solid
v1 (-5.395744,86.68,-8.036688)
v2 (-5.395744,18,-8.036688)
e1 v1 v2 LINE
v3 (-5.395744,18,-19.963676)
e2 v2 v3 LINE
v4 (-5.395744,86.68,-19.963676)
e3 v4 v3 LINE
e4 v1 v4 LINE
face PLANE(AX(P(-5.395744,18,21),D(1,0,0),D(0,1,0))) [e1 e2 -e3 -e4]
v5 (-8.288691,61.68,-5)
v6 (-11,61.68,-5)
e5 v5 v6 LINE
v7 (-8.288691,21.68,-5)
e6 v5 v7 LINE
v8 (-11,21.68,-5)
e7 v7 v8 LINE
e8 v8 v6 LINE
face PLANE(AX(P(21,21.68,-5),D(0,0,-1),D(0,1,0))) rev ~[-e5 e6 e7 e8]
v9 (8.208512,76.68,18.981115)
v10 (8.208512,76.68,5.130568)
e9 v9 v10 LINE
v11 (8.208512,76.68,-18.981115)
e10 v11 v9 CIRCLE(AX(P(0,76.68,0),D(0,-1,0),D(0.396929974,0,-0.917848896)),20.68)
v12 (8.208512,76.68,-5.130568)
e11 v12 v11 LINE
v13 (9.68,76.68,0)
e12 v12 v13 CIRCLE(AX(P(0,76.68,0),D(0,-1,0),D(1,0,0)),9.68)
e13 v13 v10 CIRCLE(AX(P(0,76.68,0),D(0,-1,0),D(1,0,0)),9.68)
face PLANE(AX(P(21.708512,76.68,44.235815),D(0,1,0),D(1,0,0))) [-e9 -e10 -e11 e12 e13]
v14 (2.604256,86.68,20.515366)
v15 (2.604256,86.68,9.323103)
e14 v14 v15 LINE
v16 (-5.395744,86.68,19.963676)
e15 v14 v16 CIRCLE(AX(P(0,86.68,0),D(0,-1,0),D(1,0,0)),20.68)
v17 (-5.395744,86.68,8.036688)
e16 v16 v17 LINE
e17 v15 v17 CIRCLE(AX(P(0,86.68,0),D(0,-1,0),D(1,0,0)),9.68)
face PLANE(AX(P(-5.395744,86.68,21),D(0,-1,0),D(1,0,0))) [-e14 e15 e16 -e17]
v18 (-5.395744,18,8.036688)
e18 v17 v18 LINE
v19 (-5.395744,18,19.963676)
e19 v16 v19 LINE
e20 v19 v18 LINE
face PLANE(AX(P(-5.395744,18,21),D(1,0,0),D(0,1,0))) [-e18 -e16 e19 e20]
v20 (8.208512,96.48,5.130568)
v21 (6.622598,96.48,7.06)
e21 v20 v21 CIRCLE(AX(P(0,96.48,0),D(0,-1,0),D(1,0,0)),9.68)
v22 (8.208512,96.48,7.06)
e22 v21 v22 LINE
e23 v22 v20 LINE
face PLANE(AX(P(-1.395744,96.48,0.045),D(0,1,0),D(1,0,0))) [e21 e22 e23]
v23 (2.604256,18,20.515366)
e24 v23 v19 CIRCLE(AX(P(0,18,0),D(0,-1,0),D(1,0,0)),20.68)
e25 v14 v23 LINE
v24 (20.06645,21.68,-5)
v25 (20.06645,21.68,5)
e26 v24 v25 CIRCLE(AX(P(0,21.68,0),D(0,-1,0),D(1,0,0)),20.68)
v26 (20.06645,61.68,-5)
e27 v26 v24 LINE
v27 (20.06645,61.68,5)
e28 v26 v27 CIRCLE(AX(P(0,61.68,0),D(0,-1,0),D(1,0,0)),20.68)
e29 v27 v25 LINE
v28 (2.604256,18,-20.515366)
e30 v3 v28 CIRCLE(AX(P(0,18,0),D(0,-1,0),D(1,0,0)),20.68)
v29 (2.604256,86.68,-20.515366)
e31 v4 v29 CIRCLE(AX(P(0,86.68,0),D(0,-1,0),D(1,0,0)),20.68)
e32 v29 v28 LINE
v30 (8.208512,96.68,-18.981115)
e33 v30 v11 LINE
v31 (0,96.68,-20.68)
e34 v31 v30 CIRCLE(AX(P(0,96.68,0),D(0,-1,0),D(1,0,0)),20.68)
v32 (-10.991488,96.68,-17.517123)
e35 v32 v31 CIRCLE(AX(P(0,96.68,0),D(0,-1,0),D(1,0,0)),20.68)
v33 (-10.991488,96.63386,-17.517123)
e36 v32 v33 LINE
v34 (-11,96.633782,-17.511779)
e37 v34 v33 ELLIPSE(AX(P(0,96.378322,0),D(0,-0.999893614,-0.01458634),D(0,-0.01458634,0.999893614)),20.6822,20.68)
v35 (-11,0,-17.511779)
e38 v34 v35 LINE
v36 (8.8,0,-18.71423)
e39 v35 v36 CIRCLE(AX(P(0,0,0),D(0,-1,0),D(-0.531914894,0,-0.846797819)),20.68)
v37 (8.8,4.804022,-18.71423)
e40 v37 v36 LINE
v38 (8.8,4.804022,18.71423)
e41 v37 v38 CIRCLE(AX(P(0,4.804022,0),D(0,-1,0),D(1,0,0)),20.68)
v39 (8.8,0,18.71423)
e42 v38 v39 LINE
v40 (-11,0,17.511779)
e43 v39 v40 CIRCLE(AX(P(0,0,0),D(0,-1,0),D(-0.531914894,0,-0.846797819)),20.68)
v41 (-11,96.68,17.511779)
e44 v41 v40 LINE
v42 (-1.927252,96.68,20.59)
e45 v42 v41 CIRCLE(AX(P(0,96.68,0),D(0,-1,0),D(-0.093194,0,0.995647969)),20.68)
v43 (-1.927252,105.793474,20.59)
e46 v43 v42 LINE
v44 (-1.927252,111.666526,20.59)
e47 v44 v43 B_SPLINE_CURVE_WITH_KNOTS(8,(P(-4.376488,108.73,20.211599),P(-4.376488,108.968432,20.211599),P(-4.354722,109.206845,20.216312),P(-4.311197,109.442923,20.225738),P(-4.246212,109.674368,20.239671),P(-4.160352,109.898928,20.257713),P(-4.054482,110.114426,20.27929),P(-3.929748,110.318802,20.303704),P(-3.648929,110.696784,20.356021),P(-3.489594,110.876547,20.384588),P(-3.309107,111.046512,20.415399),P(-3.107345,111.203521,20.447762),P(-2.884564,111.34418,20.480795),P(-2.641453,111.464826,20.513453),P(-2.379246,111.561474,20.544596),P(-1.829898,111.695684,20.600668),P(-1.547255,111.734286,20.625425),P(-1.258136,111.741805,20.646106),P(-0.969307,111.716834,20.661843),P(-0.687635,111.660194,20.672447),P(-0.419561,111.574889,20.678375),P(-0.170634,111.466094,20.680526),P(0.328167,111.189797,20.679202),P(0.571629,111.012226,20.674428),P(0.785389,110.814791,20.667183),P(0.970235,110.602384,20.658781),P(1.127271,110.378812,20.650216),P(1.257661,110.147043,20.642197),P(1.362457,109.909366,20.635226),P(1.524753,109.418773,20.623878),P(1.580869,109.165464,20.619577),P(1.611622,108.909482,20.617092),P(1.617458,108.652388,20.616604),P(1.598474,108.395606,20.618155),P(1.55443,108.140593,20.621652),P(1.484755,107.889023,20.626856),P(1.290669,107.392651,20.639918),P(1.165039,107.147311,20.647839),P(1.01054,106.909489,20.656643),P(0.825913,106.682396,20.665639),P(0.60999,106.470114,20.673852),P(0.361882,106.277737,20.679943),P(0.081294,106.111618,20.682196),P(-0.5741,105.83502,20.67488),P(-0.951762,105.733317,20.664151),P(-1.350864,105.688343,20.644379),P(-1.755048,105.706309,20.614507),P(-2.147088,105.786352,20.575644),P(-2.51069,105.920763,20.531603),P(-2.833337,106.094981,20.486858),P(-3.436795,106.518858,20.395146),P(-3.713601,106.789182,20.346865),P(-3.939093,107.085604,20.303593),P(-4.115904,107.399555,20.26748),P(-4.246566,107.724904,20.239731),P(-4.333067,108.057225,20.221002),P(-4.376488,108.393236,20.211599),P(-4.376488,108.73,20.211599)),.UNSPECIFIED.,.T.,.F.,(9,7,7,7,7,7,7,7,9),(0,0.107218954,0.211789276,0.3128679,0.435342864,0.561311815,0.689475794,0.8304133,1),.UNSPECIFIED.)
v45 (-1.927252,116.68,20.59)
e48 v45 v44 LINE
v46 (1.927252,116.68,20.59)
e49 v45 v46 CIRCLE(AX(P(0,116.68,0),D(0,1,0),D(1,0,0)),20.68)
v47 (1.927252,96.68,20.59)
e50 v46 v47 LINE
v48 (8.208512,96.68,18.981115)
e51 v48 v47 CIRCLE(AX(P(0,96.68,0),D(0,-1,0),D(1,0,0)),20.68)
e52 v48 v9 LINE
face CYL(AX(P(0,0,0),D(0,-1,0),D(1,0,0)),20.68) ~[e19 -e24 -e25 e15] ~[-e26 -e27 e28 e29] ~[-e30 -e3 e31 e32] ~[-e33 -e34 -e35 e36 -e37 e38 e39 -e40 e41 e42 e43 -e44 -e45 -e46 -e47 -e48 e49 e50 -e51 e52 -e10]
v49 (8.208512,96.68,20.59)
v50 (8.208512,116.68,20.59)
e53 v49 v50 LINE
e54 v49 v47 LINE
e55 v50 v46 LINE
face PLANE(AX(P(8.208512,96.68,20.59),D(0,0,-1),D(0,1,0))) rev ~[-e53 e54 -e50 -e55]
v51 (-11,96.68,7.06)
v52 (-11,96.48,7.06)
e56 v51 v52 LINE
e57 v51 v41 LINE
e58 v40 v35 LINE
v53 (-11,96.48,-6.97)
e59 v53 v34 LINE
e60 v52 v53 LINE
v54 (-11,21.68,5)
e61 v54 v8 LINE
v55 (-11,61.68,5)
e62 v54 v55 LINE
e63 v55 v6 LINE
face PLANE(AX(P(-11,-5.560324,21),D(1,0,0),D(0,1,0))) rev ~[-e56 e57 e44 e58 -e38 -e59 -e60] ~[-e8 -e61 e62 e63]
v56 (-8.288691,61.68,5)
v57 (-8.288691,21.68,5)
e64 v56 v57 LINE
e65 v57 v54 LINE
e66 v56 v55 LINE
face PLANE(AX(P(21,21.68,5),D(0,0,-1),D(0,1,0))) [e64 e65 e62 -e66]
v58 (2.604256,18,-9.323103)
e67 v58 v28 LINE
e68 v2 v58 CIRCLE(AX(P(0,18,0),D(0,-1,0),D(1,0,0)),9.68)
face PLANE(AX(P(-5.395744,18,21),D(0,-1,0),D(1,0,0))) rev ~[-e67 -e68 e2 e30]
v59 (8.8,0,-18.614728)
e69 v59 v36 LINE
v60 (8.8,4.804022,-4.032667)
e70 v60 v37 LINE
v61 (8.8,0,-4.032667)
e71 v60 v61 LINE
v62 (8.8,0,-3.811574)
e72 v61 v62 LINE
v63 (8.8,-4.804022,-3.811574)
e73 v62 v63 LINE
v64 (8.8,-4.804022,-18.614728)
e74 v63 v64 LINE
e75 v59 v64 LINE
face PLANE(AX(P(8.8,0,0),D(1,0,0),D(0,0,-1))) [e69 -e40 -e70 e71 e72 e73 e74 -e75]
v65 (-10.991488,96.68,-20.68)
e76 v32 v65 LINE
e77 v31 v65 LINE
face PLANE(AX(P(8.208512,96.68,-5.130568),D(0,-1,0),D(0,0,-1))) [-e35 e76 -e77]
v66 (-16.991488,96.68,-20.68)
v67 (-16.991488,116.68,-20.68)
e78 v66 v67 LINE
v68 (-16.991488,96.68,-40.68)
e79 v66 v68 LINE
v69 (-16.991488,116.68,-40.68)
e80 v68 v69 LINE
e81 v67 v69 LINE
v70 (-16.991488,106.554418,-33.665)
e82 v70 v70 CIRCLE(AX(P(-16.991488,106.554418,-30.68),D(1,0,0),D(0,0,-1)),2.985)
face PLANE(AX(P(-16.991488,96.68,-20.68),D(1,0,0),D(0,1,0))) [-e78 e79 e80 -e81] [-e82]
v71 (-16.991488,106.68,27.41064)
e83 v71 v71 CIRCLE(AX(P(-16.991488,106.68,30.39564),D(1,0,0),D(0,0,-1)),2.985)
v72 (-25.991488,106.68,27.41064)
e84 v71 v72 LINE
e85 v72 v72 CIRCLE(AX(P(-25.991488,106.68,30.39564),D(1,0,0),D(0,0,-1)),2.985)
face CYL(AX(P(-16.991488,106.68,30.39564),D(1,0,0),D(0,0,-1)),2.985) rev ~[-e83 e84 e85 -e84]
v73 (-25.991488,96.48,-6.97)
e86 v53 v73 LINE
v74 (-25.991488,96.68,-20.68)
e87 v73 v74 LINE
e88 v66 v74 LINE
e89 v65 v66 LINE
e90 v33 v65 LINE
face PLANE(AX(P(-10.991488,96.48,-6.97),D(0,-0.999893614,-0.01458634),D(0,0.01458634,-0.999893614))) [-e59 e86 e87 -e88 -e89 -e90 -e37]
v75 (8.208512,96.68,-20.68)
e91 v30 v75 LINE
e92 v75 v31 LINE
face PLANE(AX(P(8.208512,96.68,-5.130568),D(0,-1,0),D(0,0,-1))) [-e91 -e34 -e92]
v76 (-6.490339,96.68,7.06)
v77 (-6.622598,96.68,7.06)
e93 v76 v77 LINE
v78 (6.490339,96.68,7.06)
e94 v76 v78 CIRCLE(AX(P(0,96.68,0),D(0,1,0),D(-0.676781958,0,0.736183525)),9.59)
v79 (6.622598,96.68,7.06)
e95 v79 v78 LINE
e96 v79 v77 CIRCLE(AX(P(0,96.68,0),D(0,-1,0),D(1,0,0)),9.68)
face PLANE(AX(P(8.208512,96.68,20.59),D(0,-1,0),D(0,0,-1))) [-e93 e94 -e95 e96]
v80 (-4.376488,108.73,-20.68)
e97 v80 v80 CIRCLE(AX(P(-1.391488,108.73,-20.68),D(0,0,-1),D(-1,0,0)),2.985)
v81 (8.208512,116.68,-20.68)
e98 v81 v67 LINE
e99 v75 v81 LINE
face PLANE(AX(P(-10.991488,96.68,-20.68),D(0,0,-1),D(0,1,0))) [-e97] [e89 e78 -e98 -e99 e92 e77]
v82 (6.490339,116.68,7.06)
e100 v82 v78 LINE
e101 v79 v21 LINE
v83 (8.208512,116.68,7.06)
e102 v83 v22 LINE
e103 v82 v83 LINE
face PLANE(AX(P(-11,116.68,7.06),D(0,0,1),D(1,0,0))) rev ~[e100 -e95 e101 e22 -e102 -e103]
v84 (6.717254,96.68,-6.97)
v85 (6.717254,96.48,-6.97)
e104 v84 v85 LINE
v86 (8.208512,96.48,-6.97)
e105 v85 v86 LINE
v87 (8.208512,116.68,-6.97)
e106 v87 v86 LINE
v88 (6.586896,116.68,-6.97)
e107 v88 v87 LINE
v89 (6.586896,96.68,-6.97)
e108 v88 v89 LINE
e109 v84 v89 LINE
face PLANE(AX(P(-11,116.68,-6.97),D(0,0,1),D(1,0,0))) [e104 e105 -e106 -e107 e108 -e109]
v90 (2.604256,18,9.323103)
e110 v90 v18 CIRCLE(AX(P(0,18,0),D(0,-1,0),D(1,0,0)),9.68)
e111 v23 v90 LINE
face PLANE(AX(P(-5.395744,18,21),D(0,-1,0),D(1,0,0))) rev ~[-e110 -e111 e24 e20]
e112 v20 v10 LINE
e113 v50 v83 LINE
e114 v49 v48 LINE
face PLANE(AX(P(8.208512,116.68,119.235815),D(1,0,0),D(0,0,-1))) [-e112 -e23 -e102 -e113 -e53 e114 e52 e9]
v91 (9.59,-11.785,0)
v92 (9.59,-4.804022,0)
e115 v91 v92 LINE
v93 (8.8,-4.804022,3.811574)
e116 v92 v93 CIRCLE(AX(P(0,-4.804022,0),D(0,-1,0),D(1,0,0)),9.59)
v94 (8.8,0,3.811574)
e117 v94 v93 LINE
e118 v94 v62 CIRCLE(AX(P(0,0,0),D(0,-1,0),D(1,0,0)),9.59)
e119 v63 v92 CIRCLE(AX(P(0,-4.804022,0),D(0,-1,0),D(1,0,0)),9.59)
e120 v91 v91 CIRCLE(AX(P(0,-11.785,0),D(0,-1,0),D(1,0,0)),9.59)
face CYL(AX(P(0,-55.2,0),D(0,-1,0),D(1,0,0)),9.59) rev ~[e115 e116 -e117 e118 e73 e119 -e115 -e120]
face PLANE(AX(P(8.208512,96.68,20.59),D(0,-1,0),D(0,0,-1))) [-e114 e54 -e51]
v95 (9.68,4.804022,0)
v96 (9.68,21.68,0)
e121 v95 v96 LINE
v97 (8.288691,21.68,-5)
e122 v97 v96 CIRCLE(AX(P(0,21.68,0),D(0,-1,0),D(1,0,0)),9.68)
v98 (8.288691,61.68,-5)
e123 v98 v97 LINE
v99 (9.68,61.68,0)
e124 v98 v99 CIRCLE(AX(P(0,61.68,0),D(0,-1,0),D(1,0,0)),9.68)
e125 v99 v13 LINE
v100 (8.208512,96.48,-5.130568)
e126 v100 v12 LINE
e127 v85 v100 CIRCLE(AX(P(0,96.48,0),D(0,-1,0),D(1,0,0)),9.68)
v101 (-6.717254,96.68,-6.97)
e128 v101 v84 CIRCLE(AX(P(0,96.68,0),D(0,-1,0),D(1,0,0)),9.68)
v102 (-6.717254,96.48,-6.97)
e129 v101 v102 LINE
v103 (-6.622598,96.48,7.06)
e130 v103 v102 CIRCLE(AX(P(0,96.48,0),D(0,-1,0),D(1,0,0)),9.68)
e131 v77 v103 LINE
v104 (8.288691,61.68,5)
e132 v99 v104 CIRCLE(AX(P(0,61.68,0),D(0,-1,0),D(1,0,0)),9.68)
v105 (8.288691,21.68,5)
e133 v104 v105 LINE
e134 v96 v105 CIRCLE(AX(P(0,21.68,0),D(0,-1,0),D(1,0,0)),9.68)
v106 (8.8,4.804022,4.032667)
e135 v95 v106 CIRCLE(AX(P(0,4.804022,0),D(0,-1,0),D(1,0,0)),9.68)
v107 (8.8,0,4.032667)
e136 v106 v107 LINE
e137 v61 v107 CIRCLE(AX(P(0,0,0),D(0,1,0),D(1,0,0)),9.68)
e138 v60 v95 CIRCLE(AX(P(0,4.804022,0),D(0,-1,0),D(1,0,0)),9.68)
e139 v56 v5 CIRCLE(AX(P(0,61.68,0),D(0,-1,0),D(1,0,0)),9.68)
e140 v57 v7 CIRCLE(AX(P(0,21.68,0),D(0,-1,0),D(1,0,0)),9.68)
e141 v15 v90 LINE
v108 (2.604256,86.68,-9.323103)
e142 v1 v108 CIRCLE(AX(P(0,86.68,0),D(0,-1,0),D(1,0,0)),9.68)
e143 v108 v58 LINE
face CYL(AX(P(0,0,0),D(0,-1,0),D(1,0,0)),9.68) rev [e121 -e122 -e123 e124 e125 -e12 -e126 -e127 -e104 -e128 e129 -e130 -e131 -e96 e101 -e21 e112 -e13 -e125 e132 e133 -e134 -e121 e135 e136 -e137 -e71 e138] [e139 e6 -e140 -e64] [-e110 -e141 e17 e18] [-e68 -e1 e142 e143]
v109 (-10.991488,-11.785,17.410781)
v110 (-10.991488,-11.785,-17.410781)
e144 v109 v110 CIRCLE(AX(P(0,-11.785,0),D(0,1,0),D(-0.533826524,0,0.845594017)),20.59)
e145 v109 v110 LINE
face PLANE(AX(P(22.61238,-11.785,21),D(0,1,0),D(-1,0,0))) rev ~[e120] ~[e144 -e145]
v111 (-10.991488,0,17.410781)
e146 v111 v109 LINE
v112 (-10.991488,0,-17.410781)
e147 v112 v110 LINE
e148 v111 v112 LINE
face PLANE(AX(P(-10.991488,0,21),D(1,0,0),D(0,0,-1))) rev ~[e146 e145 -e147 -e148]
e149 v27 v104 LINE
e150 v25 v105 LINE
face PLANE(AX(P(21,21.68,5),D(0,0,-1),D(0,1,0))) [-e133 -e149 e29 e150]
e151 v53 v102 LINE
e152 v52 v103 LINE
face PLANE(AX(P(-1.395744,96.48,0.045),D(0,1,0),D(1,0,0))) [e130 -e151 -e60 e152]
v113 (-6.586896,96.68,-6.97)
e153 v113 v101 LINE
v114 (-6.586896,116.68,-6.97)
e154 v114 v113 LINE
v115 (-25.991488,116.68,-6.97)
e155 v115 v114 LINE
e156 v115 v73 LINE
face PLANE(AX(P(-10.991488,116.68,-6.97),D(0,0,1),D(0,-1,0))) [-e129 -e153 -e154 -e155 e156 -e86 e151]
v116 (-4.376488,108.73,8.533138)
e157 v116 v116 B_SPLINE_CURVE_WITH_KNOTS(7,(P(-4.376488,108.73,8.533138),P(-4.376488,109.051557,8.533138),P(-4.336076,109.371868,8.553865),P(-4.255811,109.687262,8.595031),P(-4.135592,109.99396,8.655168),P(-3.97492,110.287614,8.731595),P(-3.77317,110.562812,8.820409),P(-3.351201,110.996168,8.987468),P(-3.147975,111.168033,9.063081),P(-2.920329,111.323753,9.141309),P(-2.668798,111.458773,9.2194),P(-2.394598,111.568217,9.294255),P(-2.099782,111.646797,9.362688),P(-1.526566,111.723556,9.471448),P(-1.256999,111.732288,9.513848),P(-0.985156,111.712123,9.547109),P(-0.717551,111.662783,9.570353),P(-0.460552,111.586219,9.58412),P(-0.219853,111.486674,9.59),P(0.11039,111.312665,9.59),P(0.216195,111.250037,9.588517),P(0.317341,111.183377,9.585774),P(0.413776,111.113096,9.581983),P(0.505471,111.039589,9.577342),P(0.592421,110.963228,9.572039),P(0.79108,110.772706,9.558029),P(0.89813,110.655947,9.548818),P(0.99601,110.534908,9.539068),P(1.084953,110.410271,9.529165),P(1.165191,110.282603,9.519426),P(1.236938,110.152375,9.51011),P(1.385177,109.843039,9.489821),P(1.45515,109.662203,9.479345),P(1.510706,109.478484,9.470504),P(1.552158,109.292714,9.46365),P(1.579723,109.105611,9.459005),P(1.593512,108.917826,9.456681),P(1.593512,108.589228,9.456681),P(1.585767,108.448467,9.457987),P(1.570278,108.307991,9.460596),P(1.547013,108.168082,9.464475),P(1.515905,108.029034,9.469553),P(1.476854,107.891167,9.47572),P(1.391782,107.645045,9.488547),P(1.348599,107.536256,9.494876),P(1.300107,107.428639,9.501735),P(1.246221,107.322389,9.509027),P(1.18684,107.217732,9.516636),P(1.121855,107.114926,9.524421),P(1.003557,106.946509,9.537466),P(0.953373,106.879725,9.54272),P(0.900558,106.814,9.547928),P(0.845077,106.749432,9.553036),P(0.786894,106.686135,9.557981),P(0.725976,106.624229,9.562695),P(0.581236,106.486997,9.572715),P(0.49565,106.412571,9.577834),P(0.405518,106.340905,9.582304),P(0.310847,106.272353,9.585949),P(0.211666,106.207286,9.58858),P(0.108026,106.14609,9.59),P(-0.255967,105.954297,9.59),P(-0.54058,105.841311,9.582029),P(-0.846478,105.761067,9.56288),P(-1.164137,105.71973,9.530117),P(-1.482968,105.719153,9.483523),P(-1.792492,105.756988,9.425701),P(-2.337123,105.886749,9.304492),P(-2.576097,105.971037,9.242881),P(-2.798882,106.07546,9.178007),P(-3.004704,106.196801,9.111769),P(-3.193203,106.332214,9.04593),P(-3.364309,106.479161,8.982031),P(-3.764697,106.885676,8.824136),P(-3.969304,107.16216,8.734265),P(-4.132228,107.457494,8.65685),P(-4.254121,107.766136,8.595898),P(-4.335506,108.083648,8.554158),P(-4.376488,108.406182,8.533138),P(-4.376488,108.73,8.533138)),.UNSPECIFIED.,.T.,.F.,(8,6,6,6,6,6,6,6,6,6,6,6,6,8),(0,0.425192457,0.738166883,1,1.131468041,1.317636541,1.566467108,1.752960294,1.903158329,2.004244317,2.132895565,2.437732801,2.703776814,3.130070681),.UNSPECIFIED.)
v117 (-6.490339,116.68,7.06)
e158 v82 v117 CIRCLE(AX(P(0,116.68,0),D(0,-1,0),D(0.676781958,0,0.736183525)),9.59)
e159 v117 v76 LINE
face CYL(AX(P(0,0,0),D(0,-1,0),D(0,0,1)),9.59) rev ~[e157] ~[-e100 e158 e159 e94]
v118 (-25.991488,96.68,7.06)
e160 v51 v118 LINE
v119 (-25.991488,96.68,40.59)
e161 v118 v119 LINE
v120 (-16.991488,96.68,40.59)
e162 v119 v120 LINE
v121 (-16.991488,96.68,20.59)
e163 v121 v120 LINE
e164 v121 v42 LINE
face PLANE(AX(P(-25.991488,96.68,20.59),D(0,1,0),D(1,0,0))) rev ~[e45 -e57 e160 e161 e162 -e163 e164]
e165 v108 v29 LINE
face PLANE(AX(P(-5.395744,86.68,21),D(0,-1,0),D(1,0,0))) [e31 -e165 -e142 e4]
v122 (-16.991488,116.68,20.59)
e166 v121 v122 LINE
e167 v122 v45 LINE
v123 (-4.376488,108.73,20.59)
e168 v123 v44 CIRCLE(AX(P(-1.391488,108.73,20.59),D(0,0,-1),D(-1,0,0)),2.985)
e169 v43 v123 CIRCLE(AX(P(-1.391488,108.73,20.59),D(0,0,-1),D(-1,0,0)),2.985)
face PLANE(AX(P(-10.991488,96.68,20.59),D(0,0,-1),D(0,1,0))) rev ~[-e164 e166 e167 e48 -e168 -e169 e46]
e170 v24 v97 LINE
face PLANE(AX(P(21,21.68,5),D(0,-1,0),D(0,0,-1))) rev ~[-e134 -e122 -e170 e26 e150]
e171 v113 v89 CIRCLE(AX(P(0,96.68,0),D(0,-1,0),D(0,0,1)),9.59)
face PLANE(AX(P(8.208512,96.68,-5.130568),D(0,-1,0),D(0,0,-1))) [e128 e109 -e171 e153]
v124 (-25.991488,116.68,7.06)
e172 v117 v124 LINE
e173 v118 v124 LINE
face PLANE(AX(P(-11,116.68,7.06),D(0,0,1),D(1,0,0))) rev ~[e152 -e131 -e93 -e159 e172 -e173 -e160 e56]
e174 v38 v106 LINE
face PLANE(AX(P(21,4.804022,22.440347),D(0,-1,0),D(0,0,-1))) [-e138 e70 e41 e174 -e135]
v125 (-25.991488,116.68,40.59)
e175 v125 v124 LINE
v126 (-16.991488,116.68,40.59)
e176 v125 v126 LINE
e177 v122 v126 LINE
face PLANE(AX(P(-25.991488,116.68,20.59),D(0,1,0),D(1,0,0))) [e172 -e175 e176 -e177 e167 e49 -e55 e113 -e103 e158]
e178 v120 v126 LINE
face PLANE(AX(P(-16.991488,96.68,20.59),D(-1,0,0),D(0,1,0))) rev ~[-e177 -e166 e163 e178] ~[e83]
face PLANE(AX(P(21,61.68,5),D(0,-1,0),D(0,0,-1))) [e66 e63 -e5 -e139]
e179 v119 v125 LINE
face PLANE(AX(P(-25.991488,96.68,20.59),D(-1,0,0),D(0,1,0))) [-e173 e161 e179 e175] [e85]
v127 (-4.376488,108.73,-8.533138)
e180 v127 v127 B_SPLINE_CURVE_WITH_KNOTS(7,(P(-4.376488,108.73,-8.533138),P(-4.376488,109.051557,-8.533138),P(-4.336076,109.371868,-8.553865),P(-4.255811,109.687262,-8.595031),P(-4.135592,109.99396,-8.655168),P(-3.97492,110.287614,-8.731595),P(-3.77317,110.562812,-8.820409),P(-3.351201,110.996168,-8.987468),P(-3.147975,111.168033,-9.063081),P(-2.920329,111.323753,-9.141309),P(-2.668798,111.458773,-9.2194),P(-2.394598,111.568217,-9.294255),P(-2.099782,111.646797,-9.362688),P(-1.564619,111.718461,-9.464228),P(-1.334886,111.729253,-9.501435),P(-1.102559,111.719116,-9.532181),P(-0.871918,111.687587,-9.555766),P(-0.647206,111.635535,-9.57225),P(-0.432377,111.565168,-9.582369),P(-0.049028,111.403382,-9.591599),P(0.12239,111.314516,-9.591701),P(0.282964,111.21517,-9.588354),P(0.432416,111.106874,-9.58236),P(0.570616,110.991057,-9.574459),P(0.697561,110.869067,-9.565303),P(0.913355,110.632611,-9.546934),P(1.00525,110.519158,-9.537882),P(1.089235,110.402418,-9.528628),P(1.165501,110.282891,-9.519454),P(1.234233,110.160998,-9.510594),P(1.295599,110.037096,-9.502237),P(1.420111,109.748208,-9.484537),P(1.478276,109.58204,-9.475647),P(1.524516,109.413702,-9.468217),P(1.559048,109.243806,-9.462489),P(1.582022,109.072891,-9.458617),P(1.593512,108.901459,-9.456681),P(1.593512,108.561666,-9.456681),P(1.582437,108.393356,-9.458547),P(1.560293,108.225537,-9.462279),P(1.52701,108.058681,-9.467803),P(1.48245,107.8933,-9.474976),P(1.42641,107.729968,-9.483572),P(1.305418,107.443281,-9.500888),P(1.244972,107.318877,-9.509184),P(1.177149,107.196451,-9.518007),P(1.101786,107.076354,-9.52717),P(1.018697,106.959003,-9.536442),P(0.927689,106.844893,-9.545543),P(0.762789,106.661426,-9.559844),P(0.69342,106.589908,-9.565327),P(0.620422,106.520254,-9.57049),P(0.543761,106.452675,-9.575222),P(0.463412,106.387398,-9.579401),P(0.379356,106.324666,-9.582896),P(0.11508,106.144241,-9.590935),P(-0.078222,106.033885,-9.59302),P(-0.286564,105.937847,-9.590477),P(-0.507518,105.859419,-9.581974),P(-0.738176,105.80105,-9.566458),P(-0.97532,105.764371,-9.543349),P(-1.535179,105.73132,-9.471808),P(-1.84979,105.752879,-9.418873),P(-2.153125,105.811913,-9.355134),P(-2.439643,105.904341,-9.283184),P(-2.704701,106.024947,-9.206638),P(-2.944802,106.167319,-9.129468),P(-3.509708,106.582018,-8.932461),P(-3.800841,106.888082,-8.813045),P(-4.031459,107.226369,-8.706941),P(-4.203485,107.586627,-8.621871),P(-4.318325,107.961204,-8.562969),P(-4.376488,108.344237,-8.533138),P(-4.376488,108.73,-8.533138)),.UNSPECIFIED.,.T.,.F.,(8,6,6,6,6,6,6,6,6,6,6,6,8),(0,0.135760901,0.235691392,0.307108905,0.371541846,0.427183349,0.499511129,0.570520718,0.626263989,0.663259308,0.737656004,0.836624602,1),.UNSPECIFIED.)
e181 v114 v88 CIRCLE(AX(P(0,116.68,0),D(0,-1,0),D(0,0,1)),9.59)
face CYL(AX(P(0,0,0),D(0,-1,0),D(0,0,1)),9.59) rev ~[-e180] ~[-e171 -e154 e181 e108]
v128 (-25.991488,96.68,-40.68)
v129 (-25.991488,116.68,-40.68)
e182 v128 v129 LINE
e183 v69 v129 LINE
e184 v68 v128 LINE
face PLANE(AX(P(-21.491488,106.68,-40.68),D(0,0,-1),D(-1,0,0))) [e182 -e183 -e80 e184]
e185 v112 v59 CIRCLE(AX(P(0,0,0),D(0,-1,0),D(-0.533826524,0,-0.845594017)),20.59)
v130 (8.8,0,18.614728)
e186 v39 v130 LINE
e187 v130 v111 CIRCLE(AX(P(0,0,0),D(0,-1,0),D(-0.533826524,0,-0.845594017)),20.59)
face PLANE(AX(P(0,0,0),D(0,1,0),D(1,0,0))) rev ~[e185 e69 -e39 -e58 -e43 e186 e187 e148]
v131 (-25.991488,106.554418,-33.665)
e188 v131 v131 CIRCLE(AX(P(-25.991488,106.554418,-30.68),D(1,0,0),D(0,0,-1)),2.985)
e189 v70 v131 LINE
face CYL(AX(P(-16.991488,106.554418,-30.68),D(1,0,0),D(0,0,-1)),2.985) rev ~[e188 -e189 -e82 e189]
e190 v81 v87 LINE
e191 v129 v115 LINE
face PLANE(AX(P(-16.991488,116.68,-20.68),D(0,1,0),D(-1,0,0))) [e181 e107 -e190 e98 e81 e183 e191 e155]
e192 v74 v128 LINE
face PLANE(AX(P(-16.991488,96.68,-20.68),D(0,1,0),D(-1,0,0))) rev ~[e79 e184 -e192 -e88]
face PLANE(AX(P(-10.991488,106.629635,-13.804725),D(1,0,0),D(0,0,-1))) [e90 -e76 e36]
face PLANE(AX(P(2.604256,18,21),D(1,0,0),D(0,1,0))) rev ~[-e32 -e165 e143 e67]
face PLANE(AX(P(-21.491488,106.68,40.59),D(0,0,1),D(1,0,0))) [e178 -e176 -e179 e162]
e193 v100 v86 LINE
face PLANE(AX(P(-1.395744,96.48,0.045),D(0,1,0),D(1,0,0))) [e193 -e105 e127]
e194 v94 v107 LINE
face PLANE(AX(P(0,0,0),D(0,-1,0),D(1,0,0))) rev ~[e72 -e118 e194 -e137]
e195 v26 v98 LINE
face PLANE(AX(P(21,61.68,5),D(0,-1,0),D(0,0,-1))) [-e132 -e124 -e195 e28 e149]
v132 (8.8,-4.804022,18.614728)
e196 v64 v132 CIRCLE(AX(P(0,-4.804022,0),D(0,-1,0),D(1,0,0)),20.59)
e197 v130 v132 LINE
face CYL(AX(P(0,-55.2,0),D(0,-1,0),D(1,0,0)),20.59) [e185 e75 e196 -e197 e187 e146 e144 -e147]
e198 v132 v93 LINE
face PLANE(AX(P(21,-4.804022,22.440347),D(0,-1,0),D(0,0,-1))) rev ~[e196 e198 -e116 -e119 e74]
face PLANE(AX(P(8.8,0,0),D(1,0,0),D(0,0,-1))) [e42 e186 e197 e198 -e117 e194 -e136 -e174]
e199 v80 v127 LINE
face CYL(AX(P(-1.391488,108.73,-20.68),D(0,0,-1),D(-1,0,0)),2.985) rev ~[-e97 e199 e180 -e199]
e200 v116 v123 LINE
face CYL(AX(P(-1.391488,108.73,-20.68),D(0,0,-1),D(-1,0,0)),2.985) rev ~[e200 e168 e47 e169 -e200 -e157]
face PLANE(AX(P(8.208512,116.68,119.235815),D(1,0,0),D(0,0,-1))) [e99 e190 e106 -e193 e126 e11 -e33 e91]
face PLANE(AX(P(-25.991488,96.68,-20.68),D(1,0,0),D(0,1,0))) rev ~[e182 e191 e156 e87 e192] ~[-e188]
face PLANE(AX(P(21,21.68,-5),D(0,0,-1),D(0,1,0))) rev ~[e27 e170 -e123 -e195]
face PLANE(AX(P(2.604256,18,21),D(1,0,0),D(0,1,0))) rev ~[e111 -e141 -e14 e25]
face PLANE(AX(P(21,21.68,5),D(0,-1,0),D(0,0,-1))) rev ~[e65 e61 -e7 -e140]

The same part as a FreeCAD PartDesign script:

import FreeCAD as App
import Part
import Sketcher
from FreeCAD import Vector

doc = App.newDocument("Part")
body = doc.addObject("PartDesign::Body", "Body")

# Sketch on XZ plane
sketch1 = body.newObject("Sketcher::SketchObject", "Sketch")
sketch1.AttachmentSupport = (doc.getObject("XZ_Plane"), [""])
sketch1.MapMode = "FlatFace"
sketch1.addGeometry(Part.Circle(Vector(0, 0, 0), Vector(0, 0, 1), 21), False)
sketch1.addGeometry(Part.Circle(Vector(0, 0, 0), Vector(0, 0, 1), 10), False)
sketch1.addConstraint(Sketcher.Constraint("Coincident", 0, 3, -1, 1))
sketch1.addConstraint(Sketcher.Constraint("Coincident", 1, 3, -1, 1))
sketch1.addConstraint(Sketcher.Constraint("Diameter", 0, 41.36))
sketch1.addConstraint(Sketcher.Constraint("Diameter", 1, 19.36))
pad1 = body.newObject("PartDesign::Pad", "Pad")
pad1.Profile = sketch1
pad1.Length = 116.68
pad1.Reversed = True

# Sketch on XZ plane
sketch2 = body.newObject("Sketcher::SketchObject", "Sketch001")
sketch2.AttachmentSupport = (doc.getObject("XZ_Plane"), [""])
sketch2.MapMode = "FlatFace"
sketch2.AttachmentOffset = App.Placement(Vector(0, 0, -116.68), App.Rotation())
sketch2.addGeometry(Part.LineSegment(Vector(8, -31, 0), Vector(8, 119, 0)), False)
sketch2.addGeometry(Part.LineSegment(Vector(8, 119, 0), Vector(35, 119, 0)), False)
sketch2.addGeometry(Part.LineSegment(Vector(35, 119, 0), Vector(35, -31, 0)), False)
sketch2.addGeometry(Part.LineSegment(Vector(35, -31, 0), Vector(8, -31, 0)), False)
sketch2.addConstraint(Sketcher.Constraint("Coincident", 0, 2, 1, 1))
sketch2.addConstraint(Sketcher.Constraint("Coincident", 1, 2, 2, 1))
sketch2.addConstraint(Sketcher.Constraint("Coincident", 2, 2, 3, 1))
sketch2.addConstraint(Sketcher.Constraint("Coincident", 3, 2, 0, 1))
sketch2.addConstraint(Sketcher.Constraint("Vertical", 0))
sketch2.addConstraint(Sketcher.Constraint("Horizontal", 1))
sketch2.addConstraint(Sketcher.Constraint("Vertical", 2))
sketch2.addConstraint(Sketcher.Constraint("Horizontal", 3))
sketch2.addConstraint(Sketcher.Constraint("DistanceX", 1, 1, 1, 2, 27.0))
sketch2.addConstraint(Sketcher.Constraint("DistanceY", 0, 1, 0, 2, 150.0))
sketch2.addConstraint(Sketcher.Constraint("DistanceX", -1, 1, 0, 2, 8.208512))
sketch2.addConstraint(Sketcher.Constraint("DistanceY", -1, 1, 0, 2, 119.235815))
pocket1 = body.newObject("PartDesign::Pocket", "Pocket")
pocket1.Profile = sketch2
pocket1.Length = 40
pocket1.Reversed = True

# Sketch on XY plane
sketch3 = body.newObject("Sketcher::SketchObject", "Sketch002")
sketch3.AttachmentSupport = (doc.getObject("XY_Plane"), [""])
sketch3.MapMode = "FlatFace"
sketch3.AttachmentOffset = App.Placement(Vector(0, 0, 21), App.Rotation())
sketch3.addGeometry(Part.LineSegment(Vector(-21, 123, 0), Vector(-21, -6, 0)), False)
sketch3.addGeometry(Part.LineSegment(Vector(-21, -6, 0), Vector(-11, -6, 0)), False)
sketch3.addGeometry(Part.LineSegment(Vector(-11, -6, 0), Vector(-11, 123, 0)), False)
sketch3.addGeometry(Part.LineSegment(Vector(-11, 123, 0), Vector(-21, 123, 0)), False)
sketch3.addConstraint(Sketcher.Constraint("Coincident", 0, 2, 1, 1))
sketch3.addConstraint(Sketcher.Constraint("Coincident", 1, 2, 2, 1))
sketch3.addConstraint(Sketcher.Constraint("Coincident", 2, 2, 3, 1))
sketch3.addConstraint(Sketcher.Constraint("Coincident", 3, 2, 0, 1))
sketch3.addConstraint(Sketcher.Constraint("Vertical", 0))
sketch3.addConstraint(Sketcher.Constraint("Horizontal", 1))
sketch3.addConstraint(Sketcher.Constraint("Vertical", 2))
sketch3.addConstraint(Sketcher.Constraint("Horizontal", 3))
sketch3.addConstraint(Sketcher.Constraint("DistanceX", 1, 1, 1, 2, 10.0))
sketch3.addConstraint(Sketcher.Constraint("DistanceX", 0, 2, -1, 1, 21.0))
sketch3.addConstraint(Sketcher.Constraint("DistanceY", 0, 2, 0, 1, 128.345013))
sketch3.addConstraint(Sketcher.Constraint("DistanceY", -1, 1, 2, 2, 122.784689))
pocket2 = body.newObject("PartDesign::Pocket", "Pocket001")
pocket2.Profile = sketch3
pocket2.Type = "ThroughAll"

# Sketch on XY plane
sketch4 = body.newObject("Sketcher::SketchObject", "Sketch003")
sketch4.AttachmentSupport = (doc.getObject("XY_Plane"), [""])
sketch4.MapMode = "FlatFace"
sketch4.AttachmentOffset = App.Placement(Vector(0, 0, 21), App.Rotation())
sketch4.addGeometry(Part.LineSegment(Vector(-5, 87, 0), Vector(-5, 18, 0)), False)
sketch4.addGeometry(Part.LineSegment(Vector(-5, 18, 0), Vector(3, 18, 0)), False)
sketch4.addGeometry(Part.LineSegment(Vector(3, 18, 0), Vector(3, 87, 0)), False)
sketch4.addGeometry(Part.LineSegment(Vector(3, 87, 0), Vector(-5, 87, 0)), False)
sketch4.addConstraint(Sketcher.Constraint("Coincident", 0, 2, 1, 1))
sketch4.addConstraint(Sketcher.Constraint("Coincident", 1, 2, 2, 1))
sketch4.addConstraint(Sketcher.Constraint("Coincident", 2, 2, 3, 1))
sketch4.addConstraint(Sketcher.Constraint("Coincident", 3, 2, 0, 1))
sketch4.addConstraint(Sketcher.Constraint("Vertical", 0))
sketch4.addConstraint(Sketcher.Constraint("Horizontal", 1))
sketch4.addConstraint(Sketcher.Constraint("Vertical", 2))
sketch4.addConstraint(Sketcher.Constraint("Horizontal", 3))
sketch4.addConstraint(Sketcher.Constraint("DistanceX", 1, 1, 1, 2, 8.0))
sketch4.addConstraint(Sketcher.Constraint("DistanceY", -1, 1, 0, 2, 18.0))
sketch4.addConstraint(Sketcher.Constraint("DistanceY", 0, 2, 0, 1, 68.68))
sketch4.addConstraint(Sketcher.Constraint("DistanceX", 0, 2, -1, 1, 5.395744))
pocket3 = body.newObject("PartDesign::Pocket", "Pocket002")
pocket3.Profile = sketch4
pocket3.Length = 48

# Sketch on YZ plane
sketch5 = body.newObject("Sketcher::SketchObject", "Sketch004")
sketch5.AttachmentSupport = (doc.getObject("YZ_Plane"), [""])
sketch5.MapMode = "FlatFace"
sketch5.AttachmentOffset = App.Placement(Vector(0, 0, 8.208512), App.Rotation())
sketch5.addGeometry(Part.LineSegment(Vector(117, -5, 0), Vector(97, -5, 0)), False)
sketch5.addGeometry(Part.LineSegment(Vector(97, -5, 0), Vector(97, -21, 0)), False)
sketch5.addGeometry(Part.LineSegment(Vector(97, -21, 0), Vector(117, -21, 0)), False)
sketch5.addGeometry(Part.LineSegment(Vector(117, -21, 0), Vector(117, -5, 0)), False)
sketch5.addGeometry(Part.LineSegment(Vector(117, 21, 0), Vector(97, 21, 0)), False)
sketch5.addGeometry(Part.LineSegment(Vector(97, 21, 0), Vector(97, 5, 0)), False)
sketch5.addGeometry(Part.LineSegment(Vector(97, 5, 0), Vector(117, 5, 0)), False)
sketch5.addGeometry(Part.LineSegment(Vector(117, 5, 0), Vector(117, 21, 0)), False)
sketch5.addConstraint(Sketcher.Constraint("Coincident", 0, 2, 1, 1))
sketch5.addConstraint(Sketcher.Constraint("Coincident", 1, 2, 2, 1))
sketch5.addConstraint(Sketcher.Constraint("Coincident", 2, 2, 3, 1))
sketch5.addConstraint(Sketcher.Constraint("Coincident", 3, 2, 0, 1))
sketch5.addConstraint(Sketcher.Constraint("Coincident", 4, 2, 5, 1))
sketch5.addConstraint(Sketcher.Constraint("Coincident", 5, 2, 6, 1))
sketch5.addConstraint(Sketcher.Constraint("Coincident", 6, 2, 7, 1))
sketch5.addConstraint(Sketcher.Constraint("Coincident", 7, 2, 4, 1))
sketch5.addConstraint(Sketcher.Constraint("Horizontal", 0))
sketch5.addConstraint(Sketcher.Constraint("Vertical", 1))
sketch5.addConstraint(Sketcher.Constraint("Horizontal", 2))
sketch5.addConstraint(Sketcher.Constraint("Vertical", 3))
sketch5.addConstraint(Sketcher.Constraint("Horizontal", 4))
sketch5.addConstraint(Sketcher.Constraint("Vertical", 5))
sketch5.addConstraint(Sketcher.Constraint("Horizontal", 6))
sketch5.addConstraint(Sketcher.Constraint("Vertical", 7))
sketch5.addConstraint(Sketcher.Constraint("Symmetric", 0, 2, 5, 2, -1))
sketch5.addConstraint(Sketcher.Constraint("Vertical", 3, 2, 6, 2))
sketch5.addConstraint(Sketcher.Constraint("DistanceX", 0, 2, 0, 1, 20.0))
sketch5.addConstraint(Sketcher.Constraint("DistanceX", -1, 1, 0, 2, 96.68))
sketch5.addConstraint(Sketcher.Constraint("DistanceY", 1, 2, -1, 1, 20.68))
sketch5.addConstraint(Sketcher.Constraint("DistanceY", -1, 1, 4, 2, 20.59))
sketch5.addConstraint(Sketcher.Constraint("DistanceY", 1, 2, 1, 1, 15.549432))
pad2 = body.newObject("PartDesign::Pad", "Pad001")
pad2.Profile = sketch5
pad2.Length = 19.2
pad2.Reversed = True

# Sketch on XZ plane
sketch6 = body.newObject("Sketcher::SketchObject", "Sketch005")
sketch6.AttachmentSupport = (doc.getObject("XZ_Plane"), [""])
sketch6.MapMode = "FlatFace"
sketch6.AttachmentOffset = App.Placement(Vector(0, 0, -116.68), App.Rotation())
sketch6.addGeometry(Part.LineSegment(Vector(-11, -7, 0), Vector(-11, 7, 0)), False)
sketch6.addGeometry(Part.LineSegment(Vector(-11, 7, 0), Vector(8, 7, 0)), False)
sketch6.addGeometry(Part.LineSegment(Vector(8, 7, 0), Vector(8, -7, 0)), False)
sketch6.addGeometry(Part.LineSegment(Vector(8, -7, 0), Vector(-11, -7, 0)), False)
sketch6.addConstraint(Sketcher.Constraint("Coincident", 0, 2, 1, 1))
sketch6.addConstraint(Sketcher.Constraint("Coincident", 1, 2, 2, 1))
sketch6.addConstraint(Sketcher.Constraint("Coincident", 2, 2, 3, 1))
sketch6.addConstraint(Sketcher.Constraint("Coincident", 3, 2, 0, 1))
sketch6.addConstraint(Sketcher.Constraint("Vertical", 0))
sketch6.addConstraint(Sketcher.Constraint("Horizontal", 1))
sketch6.addConstraint(Sketcher.Constraint("Vertical", 2))
sketch6.addConstraint(Sketcher.Constraint("Horizontal", 3))
sketch6.addConstraint(Sketcher.Constraint("DistanceX", 0, 2, -1, 1, 11.0))
sketch6.addConstraint(Sketcher.Constraint("DistanceY", 0, 1, 0, 2, 14.03))
sketch6.addConstraint(Sketcher.Constraint("DistanceY", -1, 1, 0, 2, 7.06))
sketch6.addConstraint(Sketcher.Constraint("DistanceX", 1, 1, 1, 2, 19.208512))
pocket4 = body.newObject("PartDesign::Pocket", "Pocket003")
pocket4.Profile = sketch6
pocket4.Length = 20.2
pocket4.Reversed = True

# Sketch on XZ plane
sketch7 = body.newObject("Sketcher::SketchObject", "Sketch006")
sketch7.AttachmentSupport = (doc.getObject("XZ_Plane"), [""])
sketch7.MapMode = "FlatFace"
sketch7.addGeometry(Part.Circle(Vector(0, 0, 0), Vector(0, 0, 1), 10), False)
sketch7.addConstraint(Sketcher.Constraint("Coincident", 0, 3, -1, 1))
sketch7.addConstraint(Sketcher.Constraint("Diameter", 0, 19.18))
pocket5 = body.newObject("PartDesign::Pocket", "Pocket004")
pocket5.Profile = sketch7
pocket5.Type = "ThroughAll"

# Sketch on XY plane
sketch8 = body.newObject("Sketcher::SketchObject", "Sketch007")
sketch8.AttachmentSupport = (doc.getObject("XY_Plane"), [""])
sketch8.MapMode = "FlatFace"
sketch8.AttachmentOffset = App.Placement(Vector(0, 0, -20.68), App.Rotation())
sketch8.addGeometry(Part.Circle(Vector(-1.4, 108.7, 0), Vector(0, 0, 1), 3), False)
sketch8.addConstraint(Sketcher.Constraint("Diameter", 0, 5.97))
sketch8.addConstraint(Sketcher.Constraint("DistanceY", -1, 1, 0, 3, 108.73))
sketch8.addConstraint(Sketcher.Constraint("DistanceX", 0, 3, -1, 1, 1.391488))
pocket6 = body.newObject("PartDesign::Pocket", "Pocket005")
pocket6.Profile = sketch8
pocket6.Length = 55.2
pocket6.Reversed = True

# Sketch on XZ plane
sketch9 = body.newObject("Sketcher::SketchObject", "Sketch008")
sketch9.AttachmentSupport = (doc.getObject("XZ_Plane"), [""])
sketch9.MapMode = "FlatFace"
sketch9.AttachmentOffset = App.Placement(Vector(0, 0, 55.2), App.Rotation())
sketch9.addGeometry(Part.Circle(Vector(0, 0, 0), Vector(0, 0, 1), 21), False)
sketch9.addGeometry(Part.Circle(Vector(0, 0, 0), Vector(0, 0, 1), 10), False)
sketch9.addConstraint(Sketcher.Constraint("Coincident", 0, 3, -1, 1))
sketch9.addConstraint(Sketcher.Constraint("Coincident", 1, 3, -1, 1))
sketch9.addConstraint(Sketcher.Constraint("Diameter", 0, 41.18))
sketch9.addConstraint(Sketcher.Constraint("Diameter", 1, 19.18))
pad3 = body.newObject("PartDesign::Pad", "Pad002")
pad3.Profile = sketch9
pad3.Length = 55.2
pad3.Reversed = True

# Sketch on XY plane
sketch10 = body.newObject("Sketcher::SketchObject", "Sketch009")
sketch10.AttachmentSupport = (doc.getObject("XY_Plane"), [""])
sketch10.MapMode = "FlatFace"
sketch10.AttachmentOffset = App.Placement(Vector(0, 0, 21), App.Rotation())
sketch10.addGeometry(Part.LineSegment(Vector(23, -12, 0), Vector(-23, -12, 0)), False)
sketch10.addGeometry(Part.LineSegment(Vector(-23, -12, 0), Vector(-23, -64, 0)), False)
sketch10.addGeometry(Part.LineSegment(Vector(-23, -64, 0), Vector(23, -64, 0)), False)
sketch10.addGeometry(Part.LineSegment(Vector(23, -64, 0), Vector(23, -12, 0)), False)
sketch10.addConstraint(Sketcher.Constraint("Coincident", 0, 2, 1, 1))
sketch10.addConstraint(Sketcher.Constraint("Coincident", 1, 2, 2, 1))
sketch10.addConstraint(Sketcher.Constraint("Coincident", 2, 2, 3, 1))
sketch10.addConstraint(Sketcher.Constraint("Coincident", 3, 2, 0, 1))
sketch10.addConstraint(Sketcher.Constraint("Horizontal", 0))
sketch10.addConstraint(Sketcher.Constraint("Vertical", 1))
sketch10.addConstraint(Sketcher.Constraint("Horizontal", 2))
sketch10.addConstraint(Sketcher.Constraint("Vertical", 3))
sketch10.addConstraint(Sketcher.Constraint("DistanceY", 0, 2, -1, 1, 11.785))
sketch10.addConstraint(Sketcher.Constraint("DistanceX", 0, 2, 0, 1, 45.361905))
sketch10.addConstraint(Sketcher.Constraint("DistanceY", 1, 2, 1, 1, 52.088337))
sketch10.addConstraint(Sketcher.Constraint("DistanceX", -1, 1, 2, 2, 22.61238))
pocket7 = body.newObject("PartDesign::Pocket", "Pocket006")
pocket7.Profile = sketch10
pocket7.Length = 55.2

# Sketch on XZ plane
sketch11 = body.newObject("Sketcher::SketchObject", "Sketch010")
sketch11.AttachmentSupport = (doc.getObject("XZ_Plane"), [""])
sketch11.MapMode = "FlatFace"
sketch11.addGeometry(Part.LineSegment(Vector(-21, -21, 0), Vector(-21, 21, 0)), False)
sketch11.addGeometry(Part.LineSegment(Vector(-21, 21, 0), Vector(-11, 21, 0)), False)
sketch11.addGeometry(Part.LineSegment(Vector(-11, 21, 0), Vector(-11, -21, 0)), False)
sketch11.addGeometry(Part.LineSegment(Vector(-11, -21, 0), Vector(-21, -21, 0)), False)
sketch11.addConstraint(Sketcher.Constraint("Coincident", 0, 2, 1, 1))
sketch11.addConstraint(Sketcher.Constraint("Coincident", 1, 2, 2, 1))
sketch11.addConstraint(Sketcher.Constraint("Coincident", 2, 2, 3, 1))
sketch11.addConstraint(Sketcher.Constraint("Coincident", 3, 2, 0, 1))
sketch11.addConstraint(Sketcher.Constraint("Vertical", 0))
sketch11.addConstraint(Sketcher.Constraint("Horizontal", 1))
sketch11.addConstraint(Sketcher.Constraint("Vertical", 2))
sketch11.addConstraint(Sketcher.Constraint("Horizontal", 3))
sketch11.addConstraint(Sketcher.Constraint("DistanceX", 0, 2, -1, 1, 21.0))
sketch11.addConstraint(Sketcher.Constraint("DistanceY", -1, 1, 0, 2, 21.0))
sketch11.addConstraint(Sketcher.Constraint("DistanceY", 0, 1, 0, 2, 41.68))
sketch11.addConstraint(Sketcher.Constraint("DistanceX", 1, 1, 1, 2, 10.008512))
pocket8 = body.newObject("PartDesign::Pocket", "Pocket007")
pocket8.Profile = sketch11
pocket8.Length = 55.2
pocket8.Reversed = True

# Sketch on YZ plane
sketch12 = body.newObject("Sketcher::SketchObject", "Sketch011")
sketch12.AttachmentSupport = (doc.getObject("YZ_Plane"), [""])
sketch12.MapMode = "FlatFace"
sketch12.AttachmentOffset = App.Placement(Vector(0, 0, 21), App.Rotation())
sketch12.addGeometry(Part.LineSegment(Vector(62, 5, 0), Vector(22, 5, 0)), False)
sketch12.addGeometry(Part.LineSegment(Vector(22, 5, 0), Vector(22, -5, 0)), False)
sketch12.addGeometry(Part.LineSegment(Vector(22, -5, 0), Vector(62, -5, 0)), False)
sketch12.addGeometry(Part.LineSegment(Vector(62, -5, 0), Vector(62, 5, 0)), False)
sketch12.addConstraint(Sketcher.Constraint("Coincident", 0, 2, 1, 1))
sketch12.addConstraint(Sketcher.Constraint("Coincident", 1, 2, 2, 1))
sketch12.addConstraint(Sketcher.Constraint("Coincident", 2, 2, 3, 1))
sketch12.addConstraint(Sketcher.Constraint("Coincident", 3, 2, 0, 1))
sketch12.addConstraint(Sketcher.Constraint("Horizontal", 0))
sketch12.addConstraint(Sketcher.Constraint("Vertical", 1))
sketch12.addConstraint(Sketcher.Constraint("Horizontal", 2))
sketch12.addConstraint(Sketcher.Constraint("Vertical", 3))
sketch12.addConstraint(Sketcher.Constraint("DistanceX", 0, 2, 0, 1, 40.0))
sketch12.addConstraint(Sketcher.Constraint("DistanceY", 1, 2, 1, 1, 10.0))
sketch12.addConstraint(Sketcher.Constraint("DistanceY", -1, 1, 0, 2, 5.0))
sketch12.addConstraint(Sketcher.Constraint("DistanceX", -1, 1, 0, 2, 21.68))
pocket9 = body.newObject("PartDesign::Pocket", "Pocket008")
pocket9.Profile = sketch12
pocket9.Length = 55.2

# Sketch on YZ plane
sketch13 = body.newObject("Sketcher::SketchObject", "Sketch012")
sketch13.AttachmentSupport = (doc.getObject("YZ_Plane"), [""])
sketch13.MapMode = "FlatFace"
sketch13.AttachmentOffset = App.Placement(Vector(0, 0, 21), App.Rotation())
sketch13.addGeometry(Part.LineSegment(Vector(5, 22, 0), Vector(-5, 22, 0)), False)
sketch13.addGeometry(Part.LineSegment(Vector(-5, 22, 0), Vector(-5, -22, 0)), False)
sketch13.addGeometry(Part.LineSegment(Vector(-5, -22, 0), Vector(5, -22, 0)), False)
sketch13.addGeometry(Part.LineSegment(Vector(5, -22, 0), Vector(5, 22, 0)), False)
sketch13.addConstraint(Sketcher.Constraint("Coincident", 0, 2, 1, 1))
sketch13.addConstraint(Sketcher.Constraint("Coincident", 1, 2, 2, 1))
sketch13.addConstraint(Sketcher.Constraint("Coincident", 2, 2, 3, 1))
sketch13.addConstraint(Sketcher.Constraint("Coincident", 3, 2, 0, 1))
sketch13.addConstraint(Sketcher.Constraint("Horizontal", 0))
sketch13.addConstraint(Sketcher.Constraint("Vertical", 1))
sketch13.addConstraint(Sketcher.Constraint("Horizontal", 2))
sketch13.addConstraint(Sketcher.Constraint("Vertical", 3))
sketch13.addConstraint(Sketcher.Constraint("Symmetric", 0, 2, 2, 2, -1, 1))
sketch13.addConstraint(Sketcher.Constraint("DistanceX", 0, 2, 0, 1, 9.608044))
sketch13.addConstraint(Sketcher.Constraint("DistanceY", 1, 2, 1, 1, 44.880695))
pocket10 = body.newObject("PartDesign::Pocket", "Pocket009")
pocket10.Profile = sketch13
pocket10.Length = 12.2

# Sketch on YZ plane
sketch14 = body.newObject("Sketcher::SketchObject", "Sketch013")
sketch14.AttachmentSupport = (doc.getObject("YZ_Plane"), [""])
sketch14.MapMode = "FlatFace"
sketch14.AttachmentOffset = App.Placement(Vector(0, 0, -10.991488), App.Rotation())
sketch14.addGeometry(Part.LineSegment(Vector(117, 7, 0), Vector(97, 7, 0)), False)
sketch14.addGeometry(Part.LineSegment(Vector(97, 7, 0), Vector(97, 21, 0)), False)
sketch14.addGeometry(Part.LineSegment(Vector(97, 21, 0), Vector(117, 21, 0)), False)
sketch14.addGeometry(Part.LineSegment(Vector(117, 21, 0), Vector(117, 7, 0)), False)
sketch14.addConstraint(Sketcher.Constraint("Coincident", 0, 2, 1, 1))
sketch14.addConstraint(Sketcher.Constraint("Coincident", 1, 2, 2, 1))
sketch14.addConstraint(Sketcher.Constraint("Coincident", 2, 2, 3, 1))
sketch14.addConstraint(Sketcher.Constraint("Coincident", 3, 2, 0, 1))
sketch14.addConstraint(Sketcher.Constraint("Horizontal", 0))
sketch14.addConstraint(Sketcher.Constraint("Vertical", 1))
sketch14.addConstraint(Sketcher.Constraint("Horizontal", 2))
sketch14.addConstraint(Sketcher.Constraint("Vertical", 3))
sketch14.addConstraint(Sketcher.Constraint("DistanceX", 0, 2, 0, 1, 20.0))
sketch14.addConstraint(Sketcher.Constraint("DistanceY", 1, 1, 1, 2, 13.53))
sketch14.addConstraint(Sketcher.Constraint("DistanceX", -1, 1, 0, 2, 96.68))
sketch14.addConstraint(Sketcher.Constraint("DistanceY", -1, 1, 0, 2, 7.06))
pad4 = body.newObject("PartDesign::Pad", "Pad003")
pad4.Profile = sketch14
pad4.Length = 15
pad4.Reversed = True

# Sketch on YZ plane
sketch15 = body.newObject("Sketcher::SketchObject", "Sketch014")
sketch15.AttachmentSupport = (doc.getObject("YZ_Plane"), [""])
sketch15.MapMode = "FlatFace"
sketch15.AttachmentOffset = App.Placement(Vector(0, 0, -10.991488), App.Rotation())
sketch15.addGeometry(Part.LineSegment(Vector(117, -7, 0), Vector(117, -21, 0)), False)
sketch15.addGeometry(Part.LineSegment(Vector(117, -21, 0), Vector(97, -21, 0)), False)
sketch15.addGeometry(Part.LineSegment(Vector(97, -21, 0), Vector(96, -7, 0)), False)
sketch15.addGeometry(Part.LineSegment(Vector(96, -7, 0), Vector(117, -7, 0)), False)
sketch15.addConstraint(Sketcher.Constraint("Coincident", 0, 2, 1, 1))
sketch15.addConstraint(Sketcher.Constraint("Coincident", 1, 2, 2, 1))
sketch15.addConstraint(Sketcher.Constraint("Coincident", 2, 2, 3, 1))
sketch15.addConstraint(Sketcher.Constraint("Coincident", 3, 2, 0, 1))
sketch15.addConstraint(Sketcher.Constraint("Vertical", 0))
sketch15.addConstraint(Sketcher.Constraint("Horizontal", 1))
sketch15.addConstraint(Sketcher.Constraint("Horizontal", 3))
sketch15.addConstraint(Sketcher.Constraint("DistanceX", 1, 2, 1, 1, 20.0))
sketch15.addConstraint(Sketcher.Constraint("DistanceX", 3, 1, 3, 2, 20.2))
sketch15.addConstraint(Sketcher.Constraint("DistanceY", 0, 2, 0, 1, 13.71))
sketch15.addConstraint(Sketcher.Constraint("DistanceX", -1, 1, 0, 2, 116.68))
sketch15.addConstraint(Sketcher.Constraint("DistanceY", 0, 2, -1, 1, 20.68))
pad5 = body.newObject("PartDesign::Pad", "Pad004")
pad5.Profile = sketch15
pad5.Length = 15
pad5.Reversed = True

# Sketch on XY plane
sketch16 = body.newObject("Sketcher::SketchObject", "Sketch015")
sketch16.AttachmentSupport = (doc.getObject("XY_Plane"), [""])
sketch16.MapMode = "FlatFace"
sketch16.AttachmentOffset = App.Placement(Vector(0, 0, 20.59), App.Rotation())
sketch16.addGeometry(Part.LineSegment(Vector(-26, 117, 0), Vector(-26, 97, 0)), False)
sketch16.addGeometry(Part.LineSegment(Vector(-26, 97, 0), Vector(-17, 97, 0)), False)
sketch16.addGeometry(Part.LineSegment(Vector(-17, 97, 0), Vector(-17, 117, 0)), False)
sketch16.addGeometry(Part.LineSegment(Vector(-17, 117, 0), Vector(-26, 117, 0)), False)
sketch16.addConstraint(Sketcher.Constraint("Coincident", 0, 2, 1, 1))
sketch16.addConstraint(Sketcher.Constraint("Coincident", 1, 2, 2, 1))
sketch16.addConstraint(Sketcher.Constraint("Coincident", 2, 2, 3, 1))
sketch16.addConstraint(Sketcher.Constraint("Coincident", 3, 2, 0, 1))
sketch16.addConstraint(Sketcher.Constraint("Vertical", 0))
sketch16.addConstraint(Sketcher.Constraint("Horizontal", 1))
sketch16.addConstraint(Sketcher.Constraint("Vertical", 2))
sketch16.addConstraint(Sketcher.Constraint("Horizontal", 3))
sketch16.addConstraint(Sketcher.Constraint("DistanceX", 1, 1, 1, 2, 9.0))
sketch16.addConstraint(Sketcher.Constraint("DistanceY", 0, 2, 0, 1, 20.0))
sketch16.addConstraint(Sketcher.Constraint("DistanceY", -1, 1, 0, 2, 96.68))
sketch16.addConstraint(Sketcher.Constraint("DistanceX", 0, 2, -1, 1, 25.991488))
pad6 = body.newObject("PartDesign::Pad", "Pad005")
pad6.Profile = sketch16
pad6.Length = 20

# Sketch on XY plane
sketch17 = body.newObject("Sketcher::SketchObject", "Sketch016")
sketch17.AttachmentSupport = (doc.getObject("XY_Plane"), [""])
sketch17.MapMode = "FlatFace"
sketch17.AttachmentOffset = App.Placement(Vector(0, 0, -20.68), App.Rotation())
sketch17.addGeometry(Part.LineSegment(Vector(-17, 117, 0), Vector(-17, 97, 0)), False)
sketch17.addGeometry(Part.LineSegment(Vector(-17, 97, 0), Vector(-26, 97, 0)), False)
sketch17.addGeometry(Part.LineSegment(Vector(-26, 97, 0), Vector(-26, 117, 0)), False)
sketch17.addGeometry(Part.LineSegment(Vector(-26, 117, 0), Vector(-17, 117, 0)), False)
sketch17.addConstraint(Sketcher.Constraint("Coincident", 0, 2, 1, 1))
sketch17.addConstraint(Sketcher.Constraint("Coincident", 1, 2, 2, 1))
sketch17.addConstraint(Sketcher.Constraint("Coincident", 2, 2, 3, 1))
sketch17.addConstraint(Sketcher.Constraint("Coincident", 3, 2, 0, 1))
sketch17.addConstraint(Sketcher.Constraint("Vertical", 0))
sketch17.addConstraint(Sketcher.Constraint("Horizontal", 1))
sketch17.addConstraint(Sketcher.Constraint("Vertical", 2))
sketch17.addConstraint(Sketcher.Constraint("Horizontal", 3))
sketch17.addConstraint(Sketcher.Constraint("DistanceX", 1, 2, 1, 1, 9.0))
sketch17.addConstraint(Sketcher.Constraint("DistanceY", 0, 2, 0, 1, 20.0))
sketch17.addConstraint(Sketcher.Constraint("DistanceY", -1, 1, 0, 2, 96.68))
sketch17.addConstraint(Sketcher.Constraint("DistanceX", 0, 2, -1, 1, 16.991488))
pad7 = body.newObject("PartDesign::Pad", "Pad006")
pad7.Profile = sketch17
pad7.Length = 20
pad7.Reversed = True

# Sketch on YZ plane
sketch18 = body.newObject("Sketcher::SketchObject", "Sketch017")
sketch18.AttachmentSupport = (doc.getObject("YZ_Plane"), [""])
sketch18.MapMode = "FlatFace"
sketch18.AttachmentOffset = App.Placement(Vector(0, 0, -16.991488), App.Rotation())
sketch18.addGeometry(Part.Circle(Vector(106.6, -30.7, 0), Vector(0, 0, 1), 3), False)
sketch18.addGeometry(Part.Circle(Vector(106.7, 30.4, 0), Vector(0, 0, 1), 3), False)
sketch18.addConstraint(Sketcher.Constraint("Equal", 0, 1))
sketch18.addConstraint(Sketcher.Constraint("Diameter", 0, 5.97))
sketch18.addConstraint(Sketcher.Constraint("DistanceY", 0, 3, -1, 1, 30.68))
sketch18.addConstraint(Sketcher.Constraint("DistanceX", -1, 1, 1, 3, 106.68))
sketch18.addConstraint(Sketcher.Constraint("DistanceX", -1, 1, 0, 3, 106.554418))
sketch18.addConstraint(Sketcher.Constraint("DistanceY", -1, 1, 1, 3, 30.39564))
pocket11 = body.newObject("PartDesign::Pocket", "Pocket010")
pocket11.Profile = sketch18
pocket11.Length = 20

doc.recompute()
